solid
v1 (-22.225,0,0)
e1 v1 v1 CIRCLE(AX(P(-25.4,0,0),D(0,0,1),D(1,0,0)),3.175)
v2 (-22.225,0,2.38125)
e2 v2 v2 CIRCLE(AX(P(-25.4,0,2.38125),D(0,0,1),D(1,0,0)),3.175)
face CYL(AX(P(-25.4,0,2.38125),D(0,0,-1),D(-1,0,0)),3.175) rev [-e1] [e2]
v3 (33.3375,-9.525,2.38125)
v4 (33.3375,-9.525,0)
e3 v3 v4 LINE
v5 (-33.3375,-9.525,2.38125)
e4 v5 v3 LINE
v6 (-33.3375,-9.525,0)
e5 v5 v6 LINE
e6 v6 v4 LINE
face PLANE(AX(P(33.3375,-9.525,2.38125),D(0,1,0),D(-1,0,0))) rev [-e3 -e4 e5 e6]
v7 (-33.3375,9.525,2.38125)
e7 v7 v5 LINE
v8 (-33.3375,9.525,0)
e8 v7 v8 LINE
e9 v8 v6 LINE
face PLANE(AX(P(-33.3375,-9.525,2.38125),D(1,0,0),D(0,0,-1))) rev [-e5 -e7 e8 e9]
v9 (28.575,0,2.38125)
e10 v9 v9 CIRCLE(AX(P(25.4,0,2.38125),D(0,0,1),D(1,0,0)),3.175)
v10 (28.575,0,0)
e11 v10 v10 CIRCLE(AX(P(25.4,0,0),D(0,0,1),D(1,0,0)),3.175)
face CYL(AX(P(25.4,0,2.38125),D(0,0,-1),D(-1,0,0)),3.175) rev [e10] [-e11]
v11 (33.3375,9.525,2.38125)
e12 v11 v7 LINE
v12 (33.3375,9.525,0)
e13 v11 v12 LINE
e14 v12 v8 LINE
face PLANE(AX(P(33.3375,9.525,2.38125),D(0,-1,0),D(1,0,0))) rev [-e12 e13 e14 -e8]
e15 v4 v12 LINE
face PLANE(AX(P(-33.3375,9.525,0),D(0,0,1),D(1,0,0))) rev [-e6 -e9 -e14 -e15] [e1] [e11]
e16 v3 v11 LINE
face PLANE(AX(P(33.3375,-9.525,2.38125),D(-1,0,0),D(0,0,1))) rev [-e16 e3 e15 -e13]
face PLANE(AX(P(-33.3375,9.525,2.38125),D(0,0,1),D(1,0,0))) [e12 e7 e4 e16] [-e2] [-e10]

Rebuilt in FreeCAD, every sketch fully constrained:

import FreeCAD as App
import Part
import Sketcher
Q = App.Units.Quantity


def add_polygon(sketch, points):
    """Adds a closed chain of lines whose ends are joined by coincident constraints."""
    first, n = sketch.GeometryCount, len(points)
    for a, b in zip(points, points[1:] + points[:1]):
        sketch.addGeometry(Part.LineSegment(App.Vector(*a, 0), App.Vector(*b, 0)), False)
    for i in range(n):
        sketch.addConstraint(Sketcher.Constraint("Coincident", first + i, 2, first + (i + 1) % n, 1))

doc = App.newDocument("Part")
body = doc.addObject("PartDesign::Body", "Body")

sketch1 = body.newObject("Sketcher::SketchObject", "Sketch")
sketch1.AttachmentSupport = (doc.getObject("XY_Plane"), [""])
sketch1.MapMode = "FlatFace"
add_polygon(sketch1, [(-33.3, 9.5), (-33.3, -9.5), (33.3, -9.5), (33.3, 9.5)])
sketch1.addGeometry(Part.Circle(App.Vector(-25.4, 0, 0), App.Vector(0, 0, 1), 3.2), False)
sketch1.addGeometry(Part.Circle(App.Vector(25.4, 0, 0), App.Vector(0, 0, 1), 3.2), False)
sketch1.addConstraint(Sketcher.Constraint("Vertical", 0))
sketch1.addConstraint(Sketcher.Constraint("Horizontal", 1))
sketch1.addConstraint(Sketcher.Constraint("Vertical", 2))
sketch1.addConstraint(Sketcher.Constraint("Horizontal", 3))
sketch1.addConstraint(Sketcher.Constraint("Equal", 4, 5))
sketch1.addConstraint(Sketcher.Constraint("Symmetric", 4, 3, 5, 3, -1, 1))
sketch1.addConstraint(Sketcher.Constraint("Symmetric", 0, 2, 2, 2, -1, 1))
sketch1.addConstraint(Sketcher.Constraint("PointOnObject", 4, 3, -1))
sketch1.addConstraint(Sketcher.Constraint("Diameter", 4, Q("0.25 in")))
sketch1.addConstraint(Sketcher.Constraint("DistanceX", 4, 3, -1, 1, Q("1 in")))
sketch1.addConstraint(Sketcher.Constraint("DistanceY", 0, 2, 0, 1, Q("0.75 in")))
sketch1.addConstraint(Sketcher.Constraint("DistanceX", 1, 1, 1, 2, Q("2.625 in")))
pad1 = body.newObject("PartDesign::Pad", "Pad")
pad1.Profile = sketch1
pad1.Length = Q("0.09375 in")

doc.recompute()
